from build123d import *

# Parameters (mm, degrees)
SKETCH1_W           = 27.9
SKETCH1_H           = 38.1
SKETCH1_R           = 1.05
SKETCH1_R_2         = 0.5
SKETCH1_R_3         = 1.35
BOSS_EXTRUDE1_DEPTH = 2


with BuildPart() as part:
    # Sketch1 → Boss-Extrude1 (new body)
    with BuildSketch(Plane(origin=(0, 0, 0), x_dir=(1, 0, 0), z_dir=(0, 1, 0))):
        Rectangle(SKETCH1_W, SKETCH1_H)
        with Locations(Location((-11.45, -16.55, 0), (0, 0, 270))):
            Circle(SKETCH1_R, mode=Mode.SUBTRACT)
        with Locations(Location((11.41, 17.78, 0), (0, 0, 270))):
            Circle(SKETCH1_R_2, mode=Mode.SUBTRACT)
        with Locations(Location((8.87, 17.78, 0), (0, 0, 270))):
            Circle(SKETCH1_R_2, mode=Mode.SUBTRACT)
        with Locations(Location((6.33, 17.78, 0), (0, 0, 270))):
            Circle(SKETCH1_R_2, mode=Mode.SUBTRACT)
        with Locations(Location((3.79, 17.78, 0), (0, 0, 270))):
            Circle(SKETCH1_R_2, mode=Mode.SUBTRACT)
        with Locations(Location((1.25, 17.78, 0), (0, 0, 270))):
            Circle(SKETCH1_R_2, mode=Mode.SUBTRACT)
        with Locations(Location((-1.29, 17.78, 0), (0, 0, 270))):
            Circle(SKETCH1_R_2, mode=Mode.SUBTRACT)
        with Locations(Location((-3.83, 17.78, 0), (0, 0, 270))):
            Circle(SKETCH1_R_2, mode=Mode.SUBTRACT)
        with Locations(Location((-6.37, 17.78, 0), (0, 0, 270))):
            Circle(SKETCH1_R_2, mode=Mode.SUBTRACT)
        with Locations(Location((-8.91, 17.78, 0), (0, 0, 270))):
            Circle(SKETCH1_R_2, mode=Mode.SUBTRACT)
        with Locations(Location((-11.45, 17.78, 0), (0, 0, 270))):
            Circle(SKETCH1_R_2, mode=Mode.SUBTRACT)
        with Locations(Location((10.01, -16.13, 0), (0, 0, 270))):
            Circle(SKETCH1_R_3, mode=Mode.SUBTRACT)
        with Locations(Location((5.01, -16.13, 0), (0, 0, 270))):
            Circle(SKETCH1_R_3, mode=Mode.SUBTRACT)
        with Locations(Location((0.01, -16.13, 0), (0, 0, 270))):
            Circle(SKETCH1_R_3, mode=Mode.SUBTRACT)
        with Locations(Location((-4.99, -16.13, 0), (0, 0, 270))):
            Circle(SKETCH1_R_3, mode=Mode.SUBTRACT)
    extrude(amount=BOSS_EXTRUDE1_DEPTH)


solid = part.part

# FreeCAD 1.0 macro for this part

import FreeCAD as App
import Part
import Sketcher
Q = App.Units.Quantity

doc = App.newDocument("Part")
params = doc.addObject("Spreadsheet::Sheet", "Params")
for row, (alias, value) in enumerate([
    ("sketch1_diameter", "1 mm"),
    ("sketch1_diameter2", "2.1 mm"),
    ("sketch1_diameter3", "2.7 mm"),
    ("sketch1_width", "27.9 mm"),
    ("sketch1_height", "38.1 mm"),
    ("pad1_length", "2 mm"),
], start=1):
    params.set(f"A{row}", alias)
    params.set(f"B{row}", "=" + value)
    params.setAlias(f"B{row}", alias)

body = doc.addObject("PartDesign::Body", "Body")

# Sketch on XZ plane
sketch1 = body.newObject("Sketcher::SketchObject", "Sketch")
sketch1.AttachmentSupport = (doc.getObject("XZ_Plane"), [""])
sketch1.MapMode = "FlatFace"
sketch1.addGeometry([
    Part.LineSegment(App.Vector(-13.9, -19.1, 0), App.Vector(-13.9, 19.1, 0)),  # 0
    Part.LineSegment(App.Vector(-13.9, 19.1, 0), App.Vector(13.9, 19.1, 0)),  # 1
    Part.LineSegment(App.Vector(13.9, 19.1, 0), App.Vector(13.9, -19.1, 0)),  # 2
    Part.LineSegment(App.Vector(13.9, -19.1, 0), App.Vector(-13.9, -19.1, 0)),  # 3
    Part.Circle(App.Vector(-11.4, 16.6, 0), App.Vector(0, 0, 1), 1.1),  # 4
    Part.Circle(App.Vector(-5, 16.1, 0), App.Vector(0, 0, 1), 1.4),  # 5
    Part.Circle(App.Vector(0, 16.1, 0), App.Vector(0, 0, 1), 1.4),  # 6
    Part.Circle(App.Vector(5, 16.1, 0), App.Vector(0, 0, 1), 1.4),  # 7
    Part.Circle(App.Vector(10, 16.1, 0), App.Vector(0, 0, 1), 1.4),  # 8
    Part.Circle(App.Vector(-11.4, -17.8, 0), App.Vector(0, 0, 1), 0.5),  # 9
    Part.Circle(App.Vector(-8.9, -17.8, 0), App.Vector(0, 0, 1), 0.5),  # 10
    Part.Circle(App.Vector(-6.4, -17.8, 0), App.Vector(0, 0, 1), 0.5),  # 11
    Part.Circle(App.Vector(-3.8, -17.8, 0), App.Vector(0, 0, 1), 0.5),  # 12
    Part.Circle(App.Vector(-1.3, -17.8, 0), App.Vector(0, 0, 1), 0.5),  # 13
    Part.Circle(App.Vector(1.2, -17.8, 0), App.Vector(0, 0, 1), 0.5),  # 14
    Part.Circle(App.Vector(3.8, -17.8, 0), App.Vector(0, 0, 1), 0.5),  # 15
    Part.Circle(App.Vector(6.3, -17.8, 0), App.Vector(0, 0, 1), 0.5),  # 16
    Part.Circle(App.Vector(8.9, -17.8, 0), App.Vector(0, 0, 1), 0.5),  # 17
    Part.Circle(App.Vector(11.4, -17.8, 0), App.Vector(0, 0, 1), 0.5),  # 18
], False)
sketch1.addConstraint([
    Sketcher.Constraint("Coincident", 0, 2, 1, 1),
    Sketcher.Constraint("Coincident", 1, 2, 2, 1),
    Sketcher.Constraint("Coincident", 2, 2, 3, 1),
    Sketcher.Constraint("Coincident", 3, 2, 0, 1),
    Sketcher.Constraint("Vertical", 0),
    Sketcher.Constraint("Horizontal", 1),
    Sketcher.Constraint("Vertical", 2),
    Sketcher.Constraint("Horizontal", 3),
    Sketcher.Constraint("Equal", 5, 6),
    Sketcher.Constraint("Equal", 6, 7),
    Sketcher.Constraint("Equal", 7, 8),
    Sketcher.Constraint("Equal", 9, 10),
    Sketcher.Constraint("Equal", 10, 11),
    Sketcher.Constraint("Equal", 11, 12),
    Sketcher.Constraint("Equal", 12, 13),
    Sketcher.Constraint("Equal", 13, 14),
    Sketcher.Constraint("Equal", 14, 15),
    Sketcher.Constraint("Equal", 15, 16),
    Sketcher.Constraint("Equal", 16, 17),
    Sketcher.Constraint("Equal", 17, 18),
    Sketcher.Constraint("Symmetric", 0, 2, 2, 2, -1, 1),
    Sketcher.Constraint("Horizontal", 5, 3, 6, 3),
    Sketcher.Constraint("Horizontal", 6, 3, 7, 3),
    Sketcher.Constraint("Horizontal", 7, 3, 8, 3),
    Sketcher.Constraint("Horizontal", 9, 3, 10, 3),
    Sketcher.Constraint("Horizontal", 10, 3, 11, 3),
    Sketcher.Constraint("Horizontal", 11, 3, 12, 3),
    Sketcher.Constraint("Horizontal", 12, 3, 13, 3),
    Sketcher.Constraint("Horizontal", 13, 3, 14, 3),
    Sketcher.Constraint("Horizontal", 14, 3, 15, 3),
    Sketcher.Constraint("Horizontal", 15, 3, 16, 3),
    Sketcher.Constraint("Horizontal", 16, 3, 17, 3),
    Sketcher.Constraint("Horizontal", 17, 3, 18, 3),
    Sketcher.Constraint("Vertical", 4, 3, 9, 3),
    Sketcher.Constraint("Diameter", 9, Q("1 mm")),
    Sketcher.Constraint("Diameter", 4, Q("2.1 mm")),
    Sketcher.Constraint("Diameter", 5, Q("2.7 mm")),
    Sketcher.Constraint("DistanceX", 1, 1, 1, 2, Q("27.9 mm")),
    Sketcher.Constraint("DistanceY", 0, 1, 0, 2, Q("38.1 mm")),
    Sketcher.Constraint("DistanceX", 5, 3, 6, 3, Q("5 mm")),
    Sketcher.Constraint("DistanceX", 6, 3, 7, 3, Q("5 mm")),
    Sketcher.Constraint("DistanceX", 7, 3, 8, 3, Q("5 mm")),
    Sketcher.Constraint("DistanceX", 13, 3, 6, 3, Q("1.3 mm")),
    Sketcher.Constraint("DistanceX", 9, 3, 14, 3, Q("12.7 mm")),
    Sketcher.Constraint("DistanceX", 10, 3, 15, 3, Q("12.7 mm")),
    Sketcher.Constraint("DistanceX", 11, 3, 16, 3, Q("12.7 mm")),
    Sketcher.Constraint("DistanceX", 12, 3, 17, 3, Q("12.7 mm")),
    Sketcher.Constraint("DistanceX", 13, 3, 18, 3, Q("12.7 mm")),
    Sketcher.Constraint("DistanceX", 0, 2, 4, 3, Q("2.5 mm")),
    Sketcher.Constraint("DistanceY", 4, 3, 0, 2, Q("2.5 mm")),
    Sketcher.Constraint("DistanceX", 5, 3, -1, 1, Q("4.99 mm")),
    Sketcher.Constraint("DistanceY", -1, 1, 5, 3, Q("16.13 mm")),
    Sketcher.Constraint("DistanceY", 9, 3, -1, 1, Q("17.78 mm")),
    Sketcher.Constraint("DistanceX", 10, 3, -1, 1, Q("8.91 mm")),
    Sketcher.Constraint("DistanceX", 11, 3, -1, 1, Q("6.37 mm")),
    Sketcher.Constraint("DistanceX", 12, 3, -1, 1, Q("3.83 mm")),
])
sketch1.setExpression("Constraints[34]", "Params.sketch1_diameter")
sketch1.setExpression("Constraints[35]", "Params.sketch1_diameter2")
sketch1.setExpression("Constraints[36]", "Params.sketch1_diameter3")
sketch1.setExpression("Constraints[37]", "Params.sketch1_width")
sketch1.setExpression("Constraints[38]", "Params.sketch1_height")
pad1 = body.newObject("PartDesign::Pad", "Pad")
pad1.Profile = sketch1
pad1.setExpression("Length", "Params.pad1_length")
pad1.Reversed = True

doc.recompute()
